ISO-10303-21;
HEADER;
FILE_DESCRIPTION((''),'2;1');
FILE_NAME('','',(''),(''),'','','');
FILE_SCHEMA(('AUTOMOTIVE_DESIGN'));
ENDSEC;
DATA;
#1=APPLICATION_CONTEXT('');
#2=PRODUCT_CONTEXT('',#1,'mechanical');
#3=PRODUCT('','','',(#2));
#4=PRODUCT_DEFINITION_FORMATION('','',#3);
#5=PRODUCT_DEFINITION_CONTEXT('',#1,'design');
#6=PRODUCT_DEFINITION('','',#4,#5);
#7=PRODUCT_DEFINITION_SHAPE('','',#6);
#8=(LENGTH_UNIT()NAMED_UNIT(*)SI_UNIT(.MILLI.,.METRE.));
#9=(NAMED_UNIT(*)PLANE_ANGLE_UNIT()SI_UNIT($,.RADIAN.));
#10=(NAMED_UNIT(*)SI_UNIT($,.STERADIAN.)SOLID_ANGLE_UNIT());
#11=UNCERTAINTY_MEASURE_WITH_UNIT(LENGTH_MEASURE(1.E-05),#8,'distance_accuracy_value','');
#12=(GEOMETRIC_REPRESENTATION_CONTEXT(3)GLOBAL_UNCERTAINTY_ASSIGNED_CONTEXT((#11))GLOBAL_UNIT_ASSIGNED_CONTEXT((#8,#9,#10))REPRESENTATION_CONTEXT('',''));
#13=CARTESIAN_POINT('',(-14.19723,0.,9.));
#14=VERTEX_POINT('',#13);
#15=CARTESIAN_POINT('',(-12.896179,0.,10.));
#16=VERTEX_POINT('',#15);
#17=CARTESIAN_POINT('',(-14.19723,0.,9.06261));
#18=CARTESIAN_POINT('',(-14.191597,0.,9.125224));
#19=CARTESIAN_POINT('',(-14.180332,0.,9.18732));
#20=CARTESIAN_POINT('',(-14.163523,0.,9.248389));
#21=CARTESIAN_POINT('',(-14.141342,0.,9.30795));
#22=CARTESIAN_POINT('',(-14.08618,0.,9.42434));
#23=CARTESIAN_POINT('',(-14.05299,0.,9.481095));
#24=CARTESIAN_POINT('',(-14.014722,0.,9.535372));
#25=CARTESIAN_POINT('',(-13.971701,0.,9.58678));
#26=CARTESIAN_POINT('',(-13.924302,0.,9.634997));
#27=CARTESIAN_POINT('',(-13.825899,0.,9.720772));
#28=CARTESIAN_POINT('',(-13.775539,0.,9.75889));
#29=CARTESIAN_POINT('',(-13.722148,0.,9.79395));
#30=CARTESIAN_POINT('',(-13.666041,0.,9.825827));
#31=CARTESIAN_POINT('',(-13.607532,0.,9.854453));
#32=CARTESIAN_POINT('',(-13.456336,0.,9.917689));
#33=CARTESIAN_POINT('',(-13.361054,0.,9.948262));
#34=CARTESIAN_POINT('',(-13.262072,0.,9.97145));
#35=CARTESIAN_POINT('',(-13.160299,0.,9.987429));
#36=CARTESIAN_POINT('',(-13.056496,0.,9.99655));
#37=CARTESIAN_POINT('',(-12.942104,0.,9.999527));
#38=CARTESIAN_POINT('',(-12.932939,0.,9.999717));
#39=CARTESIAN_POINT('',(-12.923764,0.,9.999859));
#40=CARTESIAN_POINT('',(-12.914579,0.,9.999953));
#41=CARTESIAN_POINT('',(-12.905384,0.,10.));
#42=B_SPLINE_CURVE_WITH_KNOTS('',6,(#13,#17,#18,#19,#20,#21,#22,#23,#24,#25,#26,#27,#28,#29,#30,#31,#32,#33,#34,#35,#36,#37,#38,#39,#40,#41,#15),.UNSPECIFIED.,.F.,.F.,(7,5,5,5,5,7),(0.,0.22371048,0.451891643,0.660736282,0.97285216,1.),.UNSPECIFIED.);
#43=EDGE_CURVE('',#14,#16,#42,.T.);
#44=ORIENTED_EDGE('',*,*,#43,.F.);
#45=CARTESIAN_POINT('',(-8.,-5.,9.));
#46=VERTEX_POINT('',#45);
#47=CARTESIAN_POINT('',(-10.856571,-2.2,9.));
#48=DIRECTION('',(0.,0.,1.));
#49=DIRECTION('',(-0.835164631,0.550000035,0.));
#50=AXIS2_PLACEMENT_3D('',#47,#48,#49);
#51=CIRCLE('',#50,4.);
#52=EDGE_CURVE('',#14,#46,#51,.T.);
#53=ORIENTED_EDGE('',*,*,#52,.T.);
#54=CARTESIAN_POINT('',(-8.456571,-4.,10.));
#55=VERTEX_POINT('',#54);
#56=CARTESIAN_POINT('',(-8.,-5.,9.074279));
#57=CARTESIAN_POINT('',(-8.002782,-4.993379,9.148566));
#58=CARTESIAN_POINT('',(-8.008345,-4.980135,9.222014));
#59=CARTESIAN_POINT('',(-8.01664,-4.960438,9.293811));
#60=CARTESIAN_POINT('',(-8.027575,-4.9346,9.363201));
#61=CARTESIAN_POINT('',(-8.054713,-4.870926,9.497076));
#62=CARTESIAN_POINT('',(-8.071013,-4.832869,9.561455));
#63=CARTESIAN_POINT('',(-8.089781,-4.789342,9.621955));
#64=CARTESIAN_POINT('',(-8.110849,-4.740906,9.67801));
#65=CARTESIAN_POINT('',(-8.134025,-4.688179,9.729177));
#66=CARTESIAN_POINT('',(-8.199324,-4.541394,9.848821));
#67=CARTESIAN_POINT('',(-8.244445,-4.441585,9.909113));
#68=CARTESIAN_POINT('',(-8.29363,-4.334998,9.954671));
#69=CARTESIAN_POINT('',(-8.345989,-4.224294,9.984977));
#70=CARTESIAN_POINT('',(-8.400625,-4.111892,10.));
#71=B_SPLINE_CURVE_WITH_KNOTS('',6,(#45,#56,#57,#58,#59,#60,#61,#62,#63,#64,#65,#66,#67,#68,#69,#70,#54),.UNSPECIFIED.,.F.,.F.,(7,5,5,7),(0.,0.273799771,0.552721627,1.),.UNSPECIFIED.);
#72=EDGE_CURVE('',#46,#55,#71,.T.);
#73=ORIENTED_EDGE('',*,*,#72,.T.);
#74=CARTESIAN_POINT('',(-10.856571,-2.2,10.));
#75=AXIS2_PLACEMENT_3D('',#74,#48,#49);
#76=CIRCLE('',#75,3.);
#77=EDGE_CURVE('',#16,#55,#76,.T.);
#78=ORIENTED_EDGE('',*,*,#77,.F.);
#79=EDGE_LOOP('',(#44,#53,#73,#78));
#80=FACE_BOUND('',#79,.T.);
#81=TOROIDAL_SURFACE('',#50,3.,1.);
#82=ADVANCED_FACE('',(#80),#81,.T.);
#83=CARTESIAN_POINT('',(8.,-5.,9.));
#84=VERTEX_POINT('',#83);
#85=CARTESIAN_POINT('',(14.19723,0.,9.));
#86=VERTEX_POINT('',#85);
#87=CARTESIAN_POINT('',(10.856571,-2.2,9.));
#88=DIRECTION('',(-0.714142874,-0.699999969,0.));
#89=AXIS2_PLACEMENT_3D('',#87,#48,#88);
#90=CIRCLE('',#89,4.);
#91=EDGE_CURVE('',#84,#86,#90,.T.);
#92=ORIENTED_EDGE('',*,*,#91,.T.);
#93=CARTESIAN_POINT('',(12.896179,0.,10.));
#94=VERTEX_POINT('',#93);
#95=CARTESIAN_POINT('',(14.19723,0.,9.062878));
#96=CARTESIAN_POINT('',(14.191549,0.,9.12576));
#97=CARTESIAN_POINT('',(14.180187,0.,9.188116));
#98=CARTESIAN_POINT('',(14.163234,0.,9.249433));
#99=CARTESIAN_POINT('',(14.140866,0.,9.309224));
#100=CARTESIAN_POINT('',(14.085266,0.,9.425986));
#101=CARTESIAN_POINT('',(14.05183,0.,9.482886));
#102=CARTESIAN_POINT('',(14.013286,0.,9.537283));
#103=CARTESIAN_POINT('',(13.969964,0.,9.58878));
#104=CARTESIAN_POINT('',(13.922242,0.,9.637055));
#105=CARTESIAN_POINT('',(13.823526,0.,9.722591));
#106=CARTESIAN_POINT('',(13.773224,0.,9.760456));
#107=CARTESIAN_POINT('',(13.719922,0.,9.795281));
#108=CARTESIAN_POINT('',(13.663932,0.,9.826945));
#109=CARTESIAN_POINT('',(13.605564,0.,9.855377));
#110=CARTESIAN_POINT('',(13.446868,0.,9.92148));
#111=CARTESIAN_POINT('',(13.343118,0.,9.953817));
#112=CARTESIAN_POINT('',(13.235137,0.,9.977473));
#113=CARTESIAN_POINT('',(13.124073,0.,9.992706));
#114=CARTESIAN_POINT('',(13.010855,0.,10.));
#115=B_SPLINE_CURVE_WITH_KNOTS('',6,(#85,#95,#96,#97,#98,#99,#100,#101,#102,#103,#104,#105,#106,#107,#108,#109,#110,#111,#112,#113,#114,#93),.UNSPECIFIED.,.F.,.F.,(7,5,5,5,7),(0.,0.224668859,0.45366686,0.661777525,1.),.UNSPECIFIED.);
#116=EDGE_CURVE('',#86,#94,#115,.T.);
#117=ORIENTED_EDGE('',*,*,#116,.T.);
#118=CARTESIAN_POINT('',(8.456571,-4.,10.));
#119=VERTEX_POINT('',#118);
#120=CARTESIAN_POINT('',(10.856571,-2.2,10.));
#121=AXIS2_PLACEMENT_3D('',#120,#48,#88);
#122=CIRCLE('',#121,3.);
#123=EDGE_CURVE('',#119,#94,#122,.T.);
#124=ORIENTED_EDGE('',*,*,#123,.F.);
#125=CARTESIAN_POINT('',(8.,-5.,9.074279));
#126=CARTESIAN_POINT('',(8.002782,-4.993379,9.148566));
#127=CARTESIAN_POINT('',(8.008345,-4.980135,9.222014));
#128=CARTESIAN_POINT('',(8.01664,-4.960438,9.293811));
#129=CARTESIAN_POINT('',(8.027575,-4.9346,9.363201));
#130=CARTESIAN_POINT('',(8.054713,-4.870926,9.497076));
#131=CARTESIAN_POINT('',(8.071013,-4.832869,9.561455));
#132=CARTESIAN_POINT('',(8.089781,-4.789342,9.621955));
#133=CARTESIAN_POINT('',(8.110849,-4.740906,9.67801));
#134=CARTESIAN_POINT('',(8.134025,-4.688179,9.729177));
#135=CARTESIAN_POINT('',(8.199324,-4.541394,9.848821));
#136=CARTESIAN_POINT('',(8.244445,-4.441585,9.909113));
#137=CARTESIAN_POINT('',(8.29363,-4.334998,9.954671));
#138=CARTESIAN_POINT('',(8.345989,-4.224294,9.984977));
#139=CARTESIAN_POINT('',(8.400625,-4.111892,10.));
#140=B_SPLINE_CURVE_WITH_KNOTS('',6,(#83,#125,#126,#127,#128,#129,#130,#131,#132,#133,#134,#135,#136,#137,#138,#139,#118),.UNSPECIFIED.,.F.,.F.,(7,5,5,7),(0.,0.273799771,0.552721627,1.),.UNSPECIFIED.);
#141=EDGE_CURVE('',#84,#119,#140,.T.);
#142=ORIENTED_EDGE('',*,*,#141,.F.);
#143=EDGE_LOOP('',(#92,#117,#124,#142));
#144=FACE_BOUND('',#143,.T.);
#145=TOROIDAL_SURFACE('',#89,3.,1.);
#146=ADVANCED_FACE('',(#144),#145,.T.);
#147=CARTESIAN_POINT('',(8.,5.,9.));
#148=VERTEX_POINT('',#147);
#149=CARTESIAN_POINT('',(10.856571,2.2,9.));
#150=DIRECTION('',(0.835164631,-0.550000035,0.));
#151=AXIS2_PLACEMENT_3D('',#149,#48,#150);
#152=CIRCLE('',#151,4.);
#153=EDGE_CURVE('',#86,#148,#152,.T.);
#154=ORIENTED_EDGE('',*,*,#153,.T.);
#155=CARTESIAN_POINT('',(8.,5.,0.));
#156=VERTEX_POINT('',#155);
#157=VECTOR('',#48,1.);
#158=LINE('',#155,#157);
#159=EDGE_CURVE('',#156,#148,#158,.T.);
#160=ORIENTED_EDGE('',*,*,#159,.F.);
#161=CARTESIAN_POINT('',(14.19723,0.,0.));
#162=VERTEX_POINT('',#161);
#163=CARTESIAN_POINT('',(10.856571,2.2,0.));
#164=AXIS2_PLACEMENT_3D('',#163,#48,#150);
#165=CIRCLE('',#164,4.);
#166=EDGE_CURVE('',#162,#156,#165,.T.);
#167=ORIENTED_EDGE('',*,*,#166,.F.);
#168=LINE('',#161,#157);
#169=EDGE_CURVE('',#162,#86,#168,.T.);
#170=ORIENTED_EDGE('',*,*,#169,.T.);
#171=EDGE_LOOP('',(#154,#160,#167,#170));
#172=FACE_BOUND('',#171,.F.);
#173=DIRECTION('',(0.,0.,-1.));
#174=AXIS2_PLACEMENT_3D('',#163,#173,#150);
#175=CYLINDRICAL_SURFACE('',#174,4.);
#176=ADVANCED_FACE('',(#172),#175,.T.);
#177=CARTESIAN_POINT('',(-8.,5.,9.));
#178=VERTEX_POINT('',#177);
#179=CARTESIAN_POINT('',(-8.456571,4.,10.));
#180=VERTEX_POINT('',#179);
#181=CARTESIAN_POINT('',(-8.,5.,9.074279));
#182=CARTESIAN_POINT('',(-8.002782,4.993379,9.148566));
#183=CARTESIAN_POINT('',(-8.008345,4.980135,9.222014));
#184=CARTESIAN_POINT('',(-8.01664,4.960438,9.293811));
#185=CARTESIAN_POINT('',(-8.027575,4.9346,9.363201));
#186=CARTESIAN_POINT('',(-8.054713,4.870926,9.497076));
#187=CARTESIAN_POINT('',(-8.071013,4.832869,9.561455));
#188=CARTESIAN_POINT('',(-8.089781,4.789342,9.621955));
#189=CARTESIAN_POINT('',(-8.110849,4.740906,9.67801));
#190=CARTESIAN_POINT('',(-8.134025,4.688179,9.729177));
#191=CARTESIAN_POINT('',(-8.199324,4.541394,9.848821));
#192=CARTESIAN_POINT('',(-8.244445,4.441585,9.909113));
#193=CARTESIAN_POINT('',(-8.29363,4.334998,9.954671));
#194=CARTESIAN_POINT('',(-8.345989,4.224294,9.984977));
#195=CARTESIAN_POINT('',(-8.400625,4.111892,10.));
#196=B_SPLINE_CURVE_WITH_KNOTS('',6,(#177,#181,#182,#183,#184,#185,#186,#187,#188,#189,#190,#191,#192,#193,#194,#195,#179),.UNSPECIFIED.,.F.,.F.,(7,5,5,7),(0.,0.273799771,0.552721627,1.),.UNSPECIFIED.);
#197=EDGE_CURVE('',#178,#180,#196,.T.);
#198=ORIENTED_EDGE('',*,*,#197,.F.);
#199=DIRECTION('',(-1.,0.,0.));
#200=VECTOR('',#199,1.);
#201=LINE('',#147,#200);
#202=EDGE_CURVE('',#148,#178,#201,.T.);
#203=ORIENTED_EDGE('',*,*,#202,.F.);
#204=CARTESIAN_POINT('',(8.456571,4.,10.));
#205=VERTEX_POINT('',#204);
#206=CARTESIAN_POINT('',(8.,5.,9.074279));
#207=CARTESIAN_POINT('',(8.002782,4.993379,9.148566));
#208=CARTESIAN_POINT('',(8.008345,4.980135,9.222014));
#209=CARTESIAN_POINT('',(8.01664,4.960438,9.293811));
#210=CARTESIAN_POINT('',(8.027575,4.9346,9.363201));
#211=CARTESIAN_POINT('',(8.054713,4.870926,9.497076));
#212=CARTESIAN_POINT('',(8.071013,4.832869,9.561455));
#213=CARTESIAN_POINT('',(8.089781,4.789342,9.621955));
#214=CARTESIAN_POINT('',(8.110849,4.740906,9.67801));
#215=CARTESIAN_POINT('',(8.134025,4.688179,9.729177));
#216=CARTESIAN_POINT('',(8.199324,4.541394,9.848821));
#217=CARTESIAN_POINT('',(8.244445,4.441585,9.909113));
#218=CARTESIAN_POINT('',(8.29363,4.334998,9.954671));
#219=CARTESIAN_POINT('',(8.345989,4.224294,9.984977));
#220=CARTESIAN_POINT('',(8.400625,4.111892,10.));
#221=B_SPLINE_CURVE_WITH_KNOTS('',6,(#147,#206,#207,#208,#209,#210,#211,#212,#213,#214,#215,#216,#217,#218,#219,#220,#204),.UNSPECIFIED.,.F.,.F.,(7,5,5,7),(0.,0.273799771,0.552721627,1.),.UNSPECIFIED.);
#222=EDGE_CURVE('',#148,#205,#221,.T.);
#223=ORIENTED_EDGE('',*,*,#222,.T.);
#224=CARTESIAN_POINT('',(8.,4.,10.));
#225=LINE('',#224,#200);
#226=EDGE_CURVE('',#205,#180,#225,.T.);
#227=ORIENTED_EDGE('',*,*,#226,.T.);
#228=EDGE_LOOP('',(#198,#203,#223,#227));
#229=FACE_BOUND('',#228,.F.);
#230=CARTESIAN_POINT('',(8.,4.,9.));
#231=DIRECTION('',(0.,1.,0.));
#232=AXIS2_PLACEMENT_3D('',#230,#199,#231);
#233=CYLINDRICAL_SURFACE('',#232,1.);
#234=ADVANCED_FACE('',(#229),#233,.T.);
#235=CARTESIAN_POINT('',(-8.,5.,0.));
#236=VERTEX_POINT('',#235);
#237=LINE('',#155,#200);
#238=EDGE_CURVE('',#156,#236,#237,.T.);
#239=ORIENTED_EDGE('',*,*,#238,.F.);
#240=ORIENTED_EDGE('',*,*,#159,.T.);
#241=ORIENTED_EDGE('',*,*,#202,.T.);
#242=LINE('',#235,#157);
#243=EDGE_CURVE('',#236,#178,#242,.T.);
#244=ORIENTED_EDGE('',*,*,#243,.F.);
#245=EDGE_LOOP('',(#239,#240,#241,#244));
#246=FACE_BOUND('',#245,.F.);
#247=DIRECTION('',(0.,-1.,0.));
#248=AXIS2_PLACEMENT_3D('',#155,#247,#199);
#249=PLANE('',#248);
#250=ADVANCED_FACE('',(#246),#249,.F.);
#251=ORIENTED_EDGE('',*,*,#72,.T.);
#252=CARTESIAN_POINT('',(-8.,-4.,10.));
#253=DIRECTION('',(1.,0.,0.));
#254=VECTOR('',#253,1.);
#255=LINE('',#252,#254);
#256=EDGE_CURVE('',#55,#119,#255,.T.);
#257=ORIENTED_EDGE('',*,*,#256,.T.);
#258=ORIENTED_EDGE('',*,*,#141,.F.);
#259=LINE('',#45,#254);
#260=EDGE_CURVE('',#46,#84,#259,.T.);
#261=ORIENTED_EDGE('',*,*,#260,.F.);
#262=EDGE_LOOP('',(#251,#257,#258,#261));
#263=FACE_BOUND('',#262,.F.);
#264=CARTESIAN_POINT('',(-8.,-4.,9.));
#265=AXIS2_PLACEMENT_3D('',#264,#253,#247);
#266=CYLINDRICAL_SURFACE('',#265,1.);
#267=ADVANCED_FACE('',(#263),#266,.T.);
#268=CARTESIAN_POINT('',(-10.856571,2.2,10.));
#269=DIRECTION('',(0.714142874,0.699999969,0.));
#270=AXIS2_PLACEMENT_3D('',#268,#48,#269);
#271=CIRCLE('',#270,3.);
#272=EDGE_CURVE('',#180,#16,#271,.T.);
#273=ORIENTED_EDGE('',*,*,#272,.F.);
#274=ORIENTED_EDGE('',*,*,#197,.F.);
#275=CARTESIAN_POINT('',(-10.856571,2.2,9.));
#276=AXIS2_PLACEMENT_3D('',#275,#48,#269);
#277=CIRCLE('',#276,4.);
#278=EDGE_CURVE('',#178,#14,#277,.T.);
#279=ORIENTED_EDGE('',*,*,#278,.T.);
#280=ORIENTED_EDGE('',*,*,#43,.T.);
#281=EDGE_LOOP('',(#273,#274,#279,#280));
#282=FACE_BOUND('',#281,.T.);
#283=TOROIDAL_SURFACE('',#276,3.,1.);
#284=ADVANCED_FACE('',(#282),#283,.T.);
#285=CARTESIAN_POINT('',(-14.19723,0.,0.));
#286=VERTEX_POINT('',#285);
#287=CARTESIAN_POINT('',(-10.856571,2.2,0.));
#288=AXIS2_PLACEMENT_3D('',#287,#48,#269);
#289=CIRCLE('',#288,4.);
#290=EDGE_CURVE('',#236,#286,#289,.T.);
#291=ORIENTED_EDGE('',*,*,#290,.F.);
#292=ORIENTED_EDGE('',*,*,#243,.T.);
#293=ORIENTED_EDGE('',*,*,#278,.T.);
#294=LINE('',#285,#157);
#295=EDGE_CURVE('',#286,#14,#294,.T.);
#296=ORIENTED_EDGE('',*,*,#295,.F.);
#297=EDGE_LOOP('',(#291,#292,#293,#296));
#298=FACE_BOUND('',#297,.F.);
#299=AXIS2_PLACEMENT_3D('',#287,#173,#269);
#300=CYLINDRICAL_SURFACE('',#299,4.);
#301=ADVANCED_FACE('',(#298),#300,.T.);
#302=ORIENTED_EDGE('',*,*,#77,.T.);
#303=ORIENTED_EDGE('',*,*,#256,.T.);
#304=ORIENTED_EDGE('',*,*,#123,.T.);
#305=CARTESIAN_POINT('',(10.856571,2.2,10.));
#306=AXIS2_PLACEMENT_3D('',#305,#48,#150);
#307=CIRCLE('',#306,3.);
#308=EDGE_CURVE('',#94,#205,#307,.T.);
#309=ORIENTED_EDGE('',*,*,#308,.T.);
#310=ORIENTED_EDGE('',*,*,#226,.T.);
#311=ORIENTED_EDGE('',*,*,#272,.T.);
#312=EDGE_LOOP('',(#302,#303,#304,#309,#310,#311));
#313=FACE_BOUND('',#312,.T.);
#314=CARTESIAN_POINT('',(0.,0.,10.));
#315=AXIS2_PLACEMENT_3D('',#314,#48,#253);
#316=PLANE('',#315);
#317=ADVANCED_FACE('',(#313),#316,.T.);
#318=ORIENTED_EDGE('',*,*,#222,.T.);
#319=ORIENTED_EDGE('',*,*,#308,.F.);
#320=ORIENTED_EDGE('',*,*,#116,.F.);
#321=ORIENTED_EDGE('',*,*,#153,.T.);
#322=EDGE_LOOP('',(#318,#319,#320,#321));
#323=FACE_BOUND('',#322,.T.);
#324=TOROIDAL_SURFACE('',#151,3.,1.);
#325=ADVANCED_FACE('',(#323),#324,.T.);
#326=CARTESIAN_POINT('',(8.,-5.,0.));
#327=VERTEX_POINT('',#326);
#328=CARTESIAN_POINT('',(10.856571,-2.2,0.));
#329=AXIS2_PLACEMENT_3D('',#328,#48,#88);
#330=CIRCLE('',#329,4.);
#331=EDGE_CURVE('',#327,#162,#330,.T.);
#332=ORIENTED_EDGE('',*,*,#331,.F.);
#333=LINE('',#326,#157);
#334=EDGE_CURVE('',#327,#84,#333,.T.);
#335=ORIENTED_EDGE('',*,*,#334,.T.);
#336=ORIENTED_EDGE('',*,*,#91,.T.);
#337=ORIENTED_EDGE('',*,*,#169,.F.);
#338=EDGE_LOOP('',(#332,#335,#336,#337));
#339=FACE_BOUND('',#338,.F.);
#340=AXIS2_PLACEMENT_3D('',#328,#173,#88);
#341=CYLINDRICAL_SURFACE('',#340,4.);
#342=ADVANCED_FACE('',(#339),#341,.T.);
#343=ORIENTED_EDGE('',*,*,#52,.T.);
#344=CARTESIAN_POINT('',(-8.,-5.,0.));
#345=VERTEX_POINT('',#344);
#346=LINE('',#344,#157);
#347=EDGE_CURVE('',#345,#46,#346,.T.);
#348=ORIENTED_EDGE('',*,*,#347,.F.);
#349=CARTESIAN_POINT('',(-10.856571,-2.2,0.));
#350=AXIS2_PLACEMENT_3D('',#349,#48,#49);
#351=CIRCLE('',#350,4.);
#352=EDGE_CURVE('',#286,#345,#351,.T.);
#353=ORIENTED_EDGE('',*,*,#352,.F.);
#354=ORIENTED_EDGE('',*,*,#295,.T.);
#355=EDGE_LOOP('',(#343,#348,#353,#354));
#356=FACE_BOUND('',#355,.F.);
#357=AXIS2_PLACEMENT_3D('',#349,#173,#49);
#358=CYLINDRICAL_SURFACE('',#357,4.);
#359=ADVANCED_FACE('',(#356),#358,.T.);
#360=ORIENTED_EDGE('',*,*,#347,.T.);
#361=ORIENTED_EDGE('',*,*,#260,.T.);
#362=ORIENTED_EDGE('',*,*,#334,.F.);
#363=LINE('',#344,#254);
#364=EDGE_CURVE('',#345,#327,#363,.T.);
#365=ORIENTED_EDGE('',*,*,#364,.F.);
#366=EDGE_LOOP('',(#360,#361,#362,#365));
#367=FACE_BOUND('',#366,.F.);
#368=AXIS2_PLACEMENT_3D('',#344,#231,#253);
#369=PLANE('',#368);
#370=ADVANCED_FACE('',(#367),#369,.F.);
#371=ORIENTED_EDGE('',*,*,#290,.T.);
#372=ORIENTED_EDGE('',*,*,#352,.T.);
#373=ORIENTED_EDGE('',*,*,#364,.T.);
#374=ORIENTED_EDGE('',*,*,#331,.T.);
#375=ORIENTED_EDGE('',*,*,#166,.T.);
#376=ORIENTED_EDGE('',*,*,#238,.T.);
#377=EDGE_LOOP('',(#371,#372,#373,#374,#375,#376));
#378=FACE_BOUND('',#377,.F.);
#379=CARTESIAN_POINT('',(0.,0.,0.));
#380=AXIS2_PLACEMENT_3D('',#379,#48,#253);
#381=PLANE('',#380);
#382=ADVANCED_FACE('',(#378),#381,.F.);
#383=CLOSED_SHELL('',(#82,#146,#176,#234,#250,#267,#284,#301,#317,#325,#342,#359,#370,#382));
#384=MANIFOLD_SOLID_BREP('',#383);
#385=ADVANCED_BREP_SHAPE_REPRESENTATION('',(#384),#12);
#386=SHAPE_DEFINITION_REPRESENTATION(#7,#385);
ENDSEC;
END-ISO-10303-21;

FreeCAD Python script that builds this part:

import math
import FreeCAD as App
import Part
import Sketcher
from FreeCAD import Vector
Q = App.Units.Quantity


def edges_at(feature, points):
    """Names of the edges that pass closest to the given points."""
    edges = feature.Shape.Edges
    near = lambda p: min(range(len(edges)), key=lambda i: edges[i].distToShape(Part.Vertex(*p))[0])
    return sorted({f"Edge{near(p) + 1}" for p in points})

doc = App.newDocument("Part")
params = doc.addObject("Spreadsheet::Sheet", "Params")
for row, (alias, value) in enumerate([
    ("sketch1_radius", "4 mm"),
    ("sketch1_width", "16 mm"),
    ("pad1_length", "10 mm"),
    ("fillet_radius", "1 mm"),
], start=1):
    params.set(f"A{row}", alias)
    params.set(f"B{row}", "=" + value)
    params.setAlias(f"B{row}", alias)

body = doc.addObject("PartDesign::Body", "Body")

# Sketch on XY plane
sketch1 = body.newObject("Sketcher::SketchObject", "Sketch")
sketch1.AttachmentSupport = (doc.getObject("XY_Plane"), [""])
sketch1.MapMode = "FlatFace"
sketch1.addGeometry([
    Part.ArcOfCircle(Part.Circle(Vector(-10.856571, 2.2, 0), Vector(0, 0, 1), 4), math.radians(44.427001), math.radians(213.367015)),  # 0
    Part.ArcOfCircle(Part.Circle(Vector(-10.856571, -2.2, 0), Vector(0, 0, 1), 4), math.radians(146.632985), math.radians(315.572999)),  # 1
    Part.LineSegment(Vector(-8, -5, 0), Vector(8, -5, 0)),  # 2
    Part.ArcOfCircle(Part.Circle(Vector(10.856571, -2.2, 0), Vector(0, 0, 1), 4), math.radians(-135.572999), math.radians(33.367015)),  # 3
    Part.ArcOfCircle(Part.Circle(Vector(10.856571, 2.2, 0), Vector(0, 0, 1), 4), math.radians(-33.367015), math.radians(135.572999)),  # 4
    Part.LineSegment(Vector(8, 5, 0), Vector(-8, 5, 0)),  # 5
], False)
sketch1.addConstraint([
    Sketcher.Constraint("Coincident", 0, 2, 1, 1),
    Sketcher.Constraint("Coincident", 1, 2, 2, 1),
    Sketcher.Constraint("Coincident", 2, 2, 3, 1),
    Sketcher.Constraint("Coincident", 3, 2, 4, 1),
    Sketcher.Constraint("Coincident", 4, 2, 5, 1),
    Sketcher.Constraint("Coincident", 5, 2, 0, 1),
    Sketcher.Constraint("Horizontal", 2),
    Sketcher.Constraint("Horizontal", 5),
    Sketcher.Constraint("Equal", 0, 1),
    Sketcher.Constraint("Equal", 1, 3),
    Sketcher.Constraint("Equal", 3, 4),
    Sketcher.Constraint("Symmetric", 0, 3, 3, 3, -1, 1),
    Sketcher.Constraint("Symmetric", 1, 3, 4, 3, -1, 1),
    Sketcher.Constraint("Symmetric", 1, 3, 3, 3, -2),
    Sketcher.Constraint("Vertical", 2, 2, 4, 2),
    Sketcher.Constraint("Radius", 0, Q("4 mm")),
    Sketcher.Constraint("DistanceX", 2, 1, 2, 2, Q("16 mm")),
    Sketcher.Constraint("DistanceY", 1, 2, -1, 1, Q("5 mm")),
    Sketcher.Constraint("DistanceY", -1, 1, 0, 3, Q("2.2 mm")),
])
sketch1.setExpression("Constraints[15]", "Params.sketch1_radius")
sketch1.setExpression("Constraints[16]", "Params.sketch1_width")
pad1 = body.newObject("PartDesign::Pad", "Pad")
pad1.Profile = sketch1
pad1.setExpression("Length", "Params.pad1_length")
doc.recompute()

fillet = body.newObject("PartDesign::Fillet", "Fillet")
fillet.Base = (pad1, edges_at(pad1, [
    (13.368, 5.313, 10),
    (0, 5, 10),
    (-13.368, 5.313, 10),
    (-13.368, -5.313, 10),
    (0, -5, 10),
    (13.368, -5.313, 10),
]))
fillet.setExpression("Radius", "Params.fillet_radius")

doc.recompute()
